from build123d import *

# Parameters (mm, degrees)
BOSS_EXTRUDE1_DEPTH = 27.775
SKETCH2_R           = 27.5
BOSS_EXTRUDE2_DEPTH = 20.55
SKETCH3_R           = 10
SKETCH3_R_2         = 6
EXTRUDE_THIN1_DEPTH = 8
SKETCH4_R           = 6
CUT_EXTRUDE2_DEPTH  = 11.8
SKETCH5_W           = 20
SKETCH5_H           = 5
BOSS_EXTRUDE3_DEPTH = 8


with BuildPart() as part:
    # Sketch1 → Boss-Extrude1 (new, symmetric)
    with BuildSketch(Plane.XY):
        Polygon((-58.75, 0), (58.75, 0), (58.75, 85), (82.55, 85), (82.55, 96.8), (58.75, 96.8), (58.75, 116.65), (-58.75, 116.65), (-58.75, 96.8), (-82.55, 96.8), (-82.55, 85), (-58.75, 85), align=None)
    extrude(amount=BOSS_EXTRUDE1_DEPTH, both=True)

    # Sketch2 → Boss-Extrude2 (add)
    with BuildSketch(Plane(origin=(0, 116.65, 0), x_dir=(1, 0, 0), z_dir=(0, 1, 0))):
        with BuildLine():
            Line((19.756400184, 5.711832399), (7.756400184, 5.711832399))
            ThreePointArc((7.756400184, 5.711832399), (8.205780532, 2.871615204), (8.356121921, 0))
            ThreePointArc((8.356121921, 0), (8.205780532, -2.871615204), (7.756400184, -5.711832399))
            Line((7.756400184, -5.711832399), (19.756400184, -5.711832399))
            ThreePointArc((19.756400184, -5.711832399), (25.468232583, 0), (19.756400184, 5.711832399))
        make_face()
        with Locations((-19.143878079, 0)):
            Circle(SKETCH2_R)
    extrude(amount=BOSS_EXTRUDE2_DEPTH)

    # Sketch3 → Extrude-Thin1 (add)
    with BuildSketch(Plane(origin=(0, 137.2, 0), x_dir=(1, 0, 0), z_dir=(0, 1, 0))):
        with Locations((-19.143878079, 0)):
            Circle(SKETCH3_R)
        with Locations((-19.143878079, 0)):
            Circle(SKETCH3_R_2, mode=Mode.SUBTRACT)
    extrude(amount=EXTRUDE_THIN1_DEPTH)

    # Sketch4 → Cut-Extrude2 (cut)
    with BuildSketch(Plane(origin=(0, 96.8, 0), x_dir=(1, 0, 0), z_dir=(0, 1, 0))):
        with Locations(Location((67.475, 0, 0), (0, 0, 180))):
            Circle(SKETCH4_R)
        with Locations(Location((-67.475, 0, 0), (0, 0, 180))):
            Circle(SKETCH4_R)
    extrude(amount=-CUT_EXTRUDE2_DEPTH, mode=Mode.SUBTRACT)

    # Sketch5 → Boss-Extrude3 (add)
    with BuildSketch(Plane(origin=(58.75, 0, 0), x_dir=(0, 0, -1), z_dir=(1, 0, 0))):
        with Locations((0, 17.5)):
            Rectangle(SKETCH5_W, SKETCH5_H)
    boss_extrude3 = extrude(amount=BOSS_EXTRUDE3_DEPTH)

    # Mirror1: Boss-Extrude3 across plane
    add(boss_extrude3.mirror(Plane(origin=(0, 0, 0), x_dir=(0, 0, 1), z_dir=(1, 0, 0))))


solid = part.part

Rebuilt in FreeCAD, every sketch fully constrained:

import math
import FreeCAD as App
import Part
import Sketcher

V = App.Vector

doc = App.newDocument("Part")
body = doc.addObject("PartDesign::Body", "Body")

sketch1 = body.newObject("Sketcher::SketchObject", "Sketch")
sketch1.AttachmentSupport = (doc.getObject("XY_Plane"), [""])
sketch1.MapMode = "FlatFace"
sketch1.addGeometry([
    Part.LineSegment(V(-59, 0, 0), V(59, 0, 0)),
    Part.LineSegment(V(59, 0, 0), V(59, 85, 0)),
    Part.LineSegment(V(59, 85, 0), V(83, 85, 0)),
    Part.LineSegment(V(83, 85, 0), V(83, 97, 0)),
    Part.LineSegment(V(83, 97, 0), V(59, 97, 0)),
    Part.LineSegment(V(59, 97, 0), V(59, 117, 0)),
    Part.LineSegment(V(59, 117, 0), V(-59, 117, 0)),
    Part.LineSegment(V(-59, 117, 0), V(-59, 97, 0)),
    Part.LineSegment(V(-59, 97, 0), V(-83, 97, 0)),
    Part.LineSegment(V(-83, 97, 0), V(-83, 85, 0)),
    Part.LineSegment(V(-83, 85, 0), V(-59, 85, 0)),
    Part.LineSegment(V(-59, 85, 0), V(-59, 0, 0)),
], False)
sketch1.addConstraint([
    Sketcher.Constraint("Coincident", 0, 2, 1, 1),
    Sketcher.Constraint("Coincident", 1, 2, 2, 1),
    Sketcher.Constraint("Coincident", 2, 2, 3, 1),
    Sketcher.Constraint("Coincident", 3, 2, 4, 1),
    Sketcher.Constraint("Coincident", 4, 2, 5, 1),
    Sketcher.Constraint("Coincident", 5, 2, 6, 1),
    Sketcher.Constraint("Coincident", 6, 2, 7, 1),
    Sketcher.Constraint("Coincident", 7, 2, 8, 1),
    Sketcher.Constraint("Coincident", 8, 2, 9, 1),
    Sketcher.Constraint("Coincident", 9, 2, 10, 1),
    Sketcher.Constraint("Coincident", 10, 2, 11, 1),
    Sketcher.Constraint("Coincident", 11, 2, 0, 1),
    Sketcher.Constraint("Horizontal", 0),
    Sketcher.Constraint("Vertical", 1),
    Sketcher.Constraint("Horizontal", 2),
    Sketcher.Constraint("Vertical", 3),
    Sketcher.Constraint("Horizontal", 4),
    Sketcher.Constraint("Vertical", 5),
    Sketcher.Constraint("Horizontal", 6),
    Sketcher.Constraint("Vertical", 7),
    Sketcher.Constraint("Horizontal", 8),
    Sketcher.Constraint("Vertical", 9),
    Sketcher.Constraint("Horizontal", 10),
    Sketcher.Constraint("Vertical", 11),
    Sketcher.Constraint("Symmetric", 0, 2, 11, 2, -1, 1),
    Sketcher.Constraint("Symmetric", 4, 2, 7, 2, -2),
    Sketcher.Constraint("Symmetric", 2, 2, 9, 2, -2),
    Sketcher.Constraint("Vertical", 1, 2, 4, 2),
    Sketcher.Constraint("DistanceY", 1, 1, 1, 2, 85.0),
    Sketcher.Constraint("DistanceX", 0, 1, 0, 2, 117.5),
    Sketcher.Constraint("DistanceX", 2, 1, 2, 2, 23.8),
    Sketcher.Constraint("DistanceY", 3, 1, 3, 2, 11.8),
    Sketcher.Constraint("DistanceY", 5, 1, 5, 2, 19.85),
])
pad1 = body.newObject("PartDesign::Pad", "Pad")
pad1.Profile = sketch1
pad1.Length = 55.55
pad1.Midplane = True

sketch2 = body.newObject("Sketcher::SketchObject", "Sketch001")
sketch2.AttachmentSupport = (doc.getObject("XZ_Plane"), [""])
sketch2.MapMode = "FlatFace"
sketch2.AttachmentOffset = App.Placement(V(0, 0, -116.65), App.Rotation())
sketch2.addGeometry([
    Part.LineSegment(V(20, -6, 0), V(8, -6, 0)),
    Part.ArcOfCircle(Part.Circle(V(-19, 0, 0), V(0, 0, 1), 28), math.radians(12), math.radians(348)),
    Part.LineSegment(V(8, 6, 0), V(20, 6, 0)),
    Part.ArcOfCircle(Part.Circle(V(20, 0, 0), V(0, 0, 1), 6), math.radians(-90), math.radians(90)),
], False)
sketch2.addConstraint([
    Sketcher.Constraint("Coincident", 0, 2, 1, 2),
    Sketcher.Constraint("Coincident", 1, 1, 2, 1),
    Sketcher.Constraint("Tangent", 2, 2, 3, 2),
    Sketcher.Constraint("Tangent", 3, 1, 0, 1),
    Sketcher.Constraint("Horizontal", 0),
    Sketcher.Constraint("Horizontal", 2),
    Sketcher.Constraint("Symmetric", 0, 2, 1, 1, -1),
    Sketcher.Constraint("Radius", 1, 27.5),
    Sketcher.Constraint("DistanceX", 0, 2, 0, 1, 12.0),
    Sketcher.Constraint("Radius", 3, 5.711832),
    Sketcher.Constraint("DistanceX", -1, 1, 3, 3, 19.7564),
])
pad2 = body.newObject("PartDesign::Pad", "Pad001")
pad2.Profile = sketch2
pad2.Length = 20.55
pad2.Reversed = True

sketch3 = body.newObject("Sketcher::SketchObject", "Sketch002")
sketch3.AttachmentSupport = (doc.getObject("XZ_Plane"), [""])
sketch3.MapMode = "FlatFace"
sketch3.AttachmentOffset = App.Placement(V(0, 0, -137.2), App.Rotation())
sketch3.addGeometry([
    Part.Circle(V(-19, 0, 0), V(0, 0, 1), 10),
    Part.Circle(V(-19, 0, 0), V(0, 0, 1), 6),
], False)
sketch3.addConstraint([
    Sketcher.Constraint("Coincident", 1, 3, 0, 3),
    Sketcher.Constraint("PointOnObject", 0, 3, -1),
    Sketcher.Constraint("Diameter", 0, 20.0),
    Sketcher.Constraint("Diameter", 1, 12.0),
    Sketcher.Constraint("DistanceX", 0, 3, -1, 1, 19.143878),
])
pad3 = body.newObject("PartDesign::Pad", "Pad002")
pad3.Profile = sketch3
pad3.Length = 8
pad3.Reversed = True

sketch4 = body.newObject("Sketcher::SketchObject", "Sketch003")
sketch4.AttachmentSupport = (doc.getObject("XZ_Plane"), [""])
sketch4.MapMode = "FlatFace"
sketch4.AttachmentOffset = App.Placement(V(0, 0, -96.8), App.Rotation())
sketch4.addGeometry([
    Part.Circle(V(67, 0, 0), V(0, 0, 1), 6),
    Part.Circle(V(-67, 0, 0), V(0, 0, 1), 6),
], False)
sketch4.addConstraint([
    Sketcher.Constraint("Equal", 0, 1),
    Sketcher.Constraint("Symmetric", 0, 3, 1, 3, -1, 1),
    Sketcher.Constraint("PointOnObject", 0, 3, -1),
    Sketcher.Constraint("Diameter", 0, 12.0),
    Sketcher.Constraint("DistanceX", 1, 3, 0, 3, 134.95),
])
pocket1 = body.newObject("PartDesign::Pocket", "Pocket")
pocket1.Profile = sketch4
pocket1.Length = 11.8
pocket1.Reversed = True

sketch5 = body.newObject("Sketcher::SketchObject", "Sketch004")
sketch5.AttachmentSupport = (doc.getObject("YZ_Plane"), [""])
sketch5.MapMode = "FlatFace"
sketch5.AttachmentOffset = App.Placement(V(0, 0, 58.75), App.Rotation())
sketch5.addGeometry([
    Part.LineSegment(V(20, 10, 0), V(15, 10, 0)),
    Part.LineSegment(V(15, 10, 0), V(15, -10, 0)),
    Part.LineSegment(V(15, -10, 0), V(20, -10, 0)),
    Part.LineSegment(V(20, -10, 0), V(20, 10, 0)),
], False)
sketch5.addConstraint([
    Sketcher.Constraint("Coincident", 0, 2, 1, 1),
    Sketcher.Constraint("Coincident", 1, 2, 2, 1),
    Sketcher.Constraint("Coincident", 2, 2, 3, 1),
    Sketcher.Constraint("Coincident", 3, 2, 0, 1),
    Sketcher.Constraint("Horizontal", 0),
    Sketcher.Constraint("Vertical", 1),
    Sketcher.Constraint("Horizontal", 2),
    Sketcher.Constraint("Vertical", 3),
    Sketcher.Constraint("DistanceX", 0, 2, 0, 1, 5.0),
    Sketcher.Constraint("DistanceY", 1, 2, 1, 1, 20.0),
    Sketcher.Constraint("DistanceX", -1, 1, 0, 2, 15.0),
    Sketcher.Constraint("DistanceY", -1, 1, 0, 2, 10.0),
])
pad4 = body.newObject("PartDesign::Pad", "Pad003")
pad4.Profile = sketch5
pad4.Length = 8
doc.recompute()

mirrored = body.newObject("PartDesign::Mirrored", "Mirrored")
mirrored.Originals = [pad4]
mirrored.MirrorPlane = (doc.getObject("YZ_Plane"), [""])
body.Tip = mirrored

doc.recompute()
